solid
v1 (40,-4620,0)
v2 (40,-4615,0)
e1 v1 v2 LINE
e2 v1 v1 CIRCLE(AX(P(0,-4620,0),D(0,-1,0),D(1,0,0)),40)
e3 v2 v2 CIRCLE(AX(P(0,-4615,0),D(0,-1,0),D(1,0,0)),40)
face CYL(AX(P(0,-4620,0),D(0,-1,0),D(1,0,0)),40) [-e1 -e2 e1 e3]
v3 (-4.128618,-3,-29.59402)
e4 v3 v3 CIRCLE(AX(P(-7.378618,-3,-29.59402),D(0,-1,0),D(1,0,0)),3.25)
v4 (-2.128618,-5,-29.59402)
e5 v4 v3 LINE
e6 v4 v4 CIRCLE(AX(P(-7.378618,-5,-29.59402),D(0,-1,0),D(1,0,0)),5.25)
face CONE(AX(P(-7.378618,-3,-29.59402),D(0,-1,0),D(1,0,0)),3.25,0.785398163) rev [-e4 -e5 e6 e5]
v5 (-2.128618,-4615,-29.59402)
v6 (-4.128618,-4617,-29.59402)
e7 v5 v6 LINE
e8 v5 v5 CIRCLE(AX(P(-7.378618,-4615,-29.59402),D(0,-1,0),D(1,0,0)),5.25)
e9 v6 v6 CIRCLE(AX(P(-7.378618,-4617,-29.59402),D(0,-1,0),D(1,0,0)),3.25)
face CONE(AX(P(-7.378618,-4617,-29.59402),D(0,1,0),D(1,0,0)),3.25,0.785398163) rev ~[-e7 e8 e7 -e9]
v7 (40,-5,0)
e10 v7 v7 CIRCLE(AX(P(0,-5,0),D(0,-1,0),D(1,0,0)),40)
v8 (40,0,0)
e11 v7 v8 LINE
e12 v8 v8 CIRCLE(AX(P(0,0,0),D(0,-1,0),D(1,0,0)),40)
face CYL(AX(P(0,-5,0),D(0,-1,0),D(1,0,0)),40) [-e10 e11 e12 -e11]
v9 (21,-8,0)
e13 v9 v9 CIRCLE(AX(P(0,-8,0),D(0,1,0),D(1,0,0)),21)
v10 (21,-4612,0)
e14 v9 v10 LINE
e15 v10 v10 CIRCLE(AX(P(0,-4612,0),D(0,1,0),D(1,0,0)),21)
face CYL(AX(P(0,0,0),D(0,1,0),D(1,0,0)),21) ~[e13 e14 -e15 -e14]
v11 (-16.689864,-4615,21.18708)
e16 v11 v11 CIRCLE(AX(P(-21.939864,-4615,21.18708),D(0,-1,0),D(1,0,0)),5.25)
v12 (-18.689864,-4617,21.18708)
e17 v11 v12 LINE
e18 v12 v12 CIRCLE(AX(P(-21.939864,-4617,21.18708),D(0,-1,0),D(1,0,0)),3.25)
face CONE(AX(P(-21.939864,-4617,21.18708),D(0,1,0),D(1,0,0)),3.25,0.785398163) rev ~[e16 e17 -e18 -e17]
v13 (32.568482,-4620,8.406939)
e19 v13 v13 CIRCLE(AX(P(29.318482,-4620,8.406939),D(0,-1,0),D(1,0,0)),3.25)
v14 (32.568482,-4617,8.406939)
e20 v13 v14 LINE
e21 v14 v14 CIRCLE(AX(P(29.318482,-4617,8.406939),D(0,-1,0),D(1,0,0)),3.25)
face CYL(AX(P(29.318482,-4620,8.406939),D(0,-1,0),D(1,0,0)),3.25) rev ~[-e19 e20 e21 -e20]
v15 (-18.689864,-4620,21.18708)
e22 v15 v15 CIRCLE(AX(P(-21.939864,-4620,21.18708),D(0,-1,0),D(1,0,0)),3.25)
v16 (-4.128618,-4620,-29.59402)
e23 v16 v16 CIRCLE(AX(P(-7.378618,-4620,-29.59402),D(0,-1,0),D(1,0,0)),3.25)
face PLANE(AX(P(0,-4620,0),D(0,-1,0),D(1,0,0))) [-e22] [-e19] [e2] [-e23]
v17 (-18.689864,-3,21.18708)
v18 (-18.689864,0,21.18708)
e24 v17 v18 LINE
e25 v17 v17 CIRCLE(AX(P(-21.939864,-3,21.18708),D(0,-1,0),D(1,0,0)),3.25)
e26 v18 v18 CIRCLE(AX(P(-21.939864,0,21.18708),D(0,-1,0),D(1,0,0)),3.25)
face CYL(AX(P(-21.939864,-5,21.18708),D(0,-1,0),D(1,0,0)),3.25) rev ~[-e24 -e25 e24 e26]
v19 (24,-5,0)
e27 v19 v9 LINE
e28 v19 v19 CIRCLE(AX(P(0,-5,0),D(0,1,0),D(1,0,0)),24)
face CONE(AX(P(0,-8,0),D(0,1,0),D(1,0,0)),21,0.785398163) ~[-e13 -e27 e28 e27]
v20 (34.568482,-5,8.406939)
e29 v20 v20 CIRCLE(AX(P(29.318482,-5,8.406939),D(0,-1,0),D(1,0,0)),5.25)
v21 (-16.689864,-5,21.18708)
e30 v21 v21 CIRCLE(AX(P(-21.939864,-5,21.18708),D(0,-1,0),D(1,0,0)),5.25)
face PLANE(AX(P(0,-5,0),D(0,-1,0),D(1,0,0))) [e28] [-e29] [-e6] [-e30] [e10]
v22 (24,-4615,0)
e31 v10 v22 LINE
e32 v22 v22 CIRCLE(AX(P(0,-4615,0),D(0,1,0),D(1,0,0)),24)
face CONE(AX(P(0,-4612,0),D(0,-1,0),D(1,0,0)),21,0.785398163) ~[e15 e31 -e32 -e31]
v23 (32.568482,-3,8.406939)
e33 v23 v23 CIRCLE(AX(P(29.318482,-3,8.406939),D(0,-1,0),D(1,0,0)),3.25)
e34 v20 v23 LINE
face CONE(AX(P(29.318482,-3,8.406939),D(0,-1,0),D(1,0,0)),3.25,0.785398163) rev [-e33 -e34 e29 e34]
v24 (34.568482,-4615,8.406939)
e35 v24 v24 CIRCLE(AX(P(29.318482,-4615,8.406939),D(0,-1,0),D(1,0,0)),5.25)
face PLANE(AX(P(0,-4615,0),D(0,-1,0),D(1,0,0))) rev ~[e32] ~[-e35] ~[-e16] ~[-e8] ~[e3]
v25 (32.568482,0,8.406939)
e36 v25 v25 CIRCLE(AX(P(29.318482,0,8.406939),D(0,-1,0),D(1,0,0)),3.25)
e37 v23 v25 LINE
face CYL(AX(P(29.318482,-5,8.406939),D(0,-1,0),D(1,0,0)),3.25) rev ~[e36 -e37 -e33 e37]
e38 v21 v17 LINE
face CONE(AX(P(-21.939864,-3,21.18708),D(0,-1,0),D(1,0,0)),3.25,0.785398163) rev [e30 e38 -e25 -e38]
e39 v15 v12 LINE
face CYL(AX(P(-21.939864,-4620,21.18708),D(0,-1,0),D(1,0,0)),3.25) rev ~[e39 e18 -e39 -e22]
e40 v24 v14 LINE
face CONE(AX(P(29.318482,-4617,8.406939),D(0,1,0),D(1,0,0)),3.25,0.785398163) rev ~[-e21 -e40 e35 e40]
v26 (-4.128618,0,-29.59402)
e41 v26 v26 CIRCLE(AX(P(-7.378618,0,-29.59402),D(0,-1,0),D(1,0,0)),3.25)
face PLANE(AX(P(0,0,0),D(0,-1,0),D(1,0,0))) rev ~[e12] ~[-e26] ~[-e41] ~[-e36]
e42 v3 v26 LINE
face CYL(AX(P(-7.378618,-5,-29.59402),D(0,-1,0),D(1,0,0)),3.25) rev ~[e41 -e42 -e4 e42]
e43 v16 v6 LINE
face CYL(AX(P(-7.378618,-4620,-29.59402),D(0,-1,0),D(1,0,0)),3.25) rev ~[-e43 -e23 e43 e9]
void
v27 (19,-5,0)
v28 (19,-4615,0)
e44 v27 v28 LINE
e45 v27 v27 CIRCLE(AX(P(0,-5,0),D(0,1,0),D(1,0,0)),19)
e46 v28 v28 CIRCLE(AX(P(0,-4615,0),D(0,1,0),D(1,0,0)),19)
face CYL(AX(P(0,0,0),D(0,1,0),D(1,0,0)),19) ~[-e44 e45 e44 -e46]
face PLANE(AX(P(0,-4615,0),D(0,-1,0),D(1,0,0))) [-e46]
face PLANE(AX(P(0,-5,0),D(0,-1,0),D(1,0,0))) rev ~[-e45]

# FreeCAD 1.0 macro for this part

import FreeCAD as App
import Part
import Sketcher


def edges_at(feature, points):
    """Names of the edges that pass closest to the given points."""
    edges = feature.Shape.Edges
    near = lambda p: min(range(len(edges)), key=lambda i: edges[i].distToShape(Part.Vertex(*p))[0])
    return sorted({f"Edge{near(p) + 1}" for p in points})

doc = App.newDocument("Part")
params = doc.addObject("Spreadsheet::Sheet", "Params")
for row, (alias, value) in enumerate([
    ("sketch1_diameter", "42 mm"),
    ("sketch1_diameter2", "38 mm"),
    ("pad1_length", "4620 mm"),
    ("sketch2_diameter", "80 mm"),
    ("sketch2_diameter2", "6.5 mm"),
    ("pad2_length", "5 mm"),
    ("sketch3_diameter", "80 mm"),
    ("sketch3_diameter2", "6.5 mm"),
    ("pad3_length", "5 mm"),
    ("chamfer_size", "2 mm"),
    ("chamfer2_size", "3 mm"),
], start=1):
    params.set(f"A{row}", alias)
    params.set(f"B{row}", "=" + value)
    params.setAlias(f"B{row}", alias)

body = doc.addObject("PartDesign::Body", "Body")

sketch1 = doc.addObject("Sketcher::SketchObject", "Sketch")
body.addObject(sketch1)
sketch1.AttachmentSupport = (doc.XZ_Plane, [""])
sketch1.MapMode = "FlatFace"
sketch1.addGeometry(Part.Circle(App.Vector(0, 0, 0), App.Vector(0, 0, 1), 21), False)
sketch1.addGeometry(Part.Circle(App.Vector(0, 0, 0), App.Vector(0, 0, 1), 19), False)
sketch1.addConstraint(Sketcher.Constraint("Coincident", 0, 3, -1, 1))
sketch1.addConstraint(Sketcher.Constraint("Coincident", 1, 3, -1, 1))
sketch1.addConstraint(Sketcher.Constraint("Diameter", 0, 42.0))
sketch1.addConstraint(Sketcher.Constraint("Diameter", 1, 38.0))
sketch1.setExpression("Constraints[2]", "Params.sketch1_diameter")
sketch1.setExpression("Constraints[3]", "Params.sketch1_diameter2")
pad1 = doc.addObject("PartDesign::Pad", "Pad")
body.addObject(pad1)
pad1.Profile = sketch1
pad1.setExpression("Length", "Params.pad1_length")

sketch2 = doc.addObject("Sketcher::SketchObject", "Sketch001")
body.addObject(sketch2)
sketch2.AttachmentSupport = (doc.XZ_Plane, [""])
sketch2.MapMode = "FlatFace"
sketch2.AttachmentOffset = App.Placement(App.Vector(0, 0, 4620), App.Rotation())
sketch2.addGeometry(Part.Circle(App.Vector(0, 0, 0), App.Vector(0, 0, 1), 40), False)
sketch2.addGeometry(Part.Circle(App.Vector(-7.4, -29.6, 0), App.Vector(0, 0, 1), 3.2), False)
sketch2.addGeometry(Part.Circle(App.Vector(-21.9, 21.2, 0), App.Vector(0, 0, 1), 3.2), False)
sketch2.addGeometry(Part.Circle(App.Vector(29.3, 8.4, 0), App.Vector(0, 0, 1), 3.2), False)
sketch2.addConstraint(Sketcher.Constraint("Coincident", 0, 3, -1, 1))
sketch2.addConstraint(Sketcher.Constraint("Equal", 1, 2))
sketch2.addConstraint(Sketcher.Constraint("Equal", 2, 3))
sketch2.addConstraint(Sketcher.Constraint("Diameter", 0, 80.0))
sketch2.addConstraint(Sketcher.Constraint("Diameter", 1, 6.5))
sketch2.addConstraint(Sketcher.Constraint("DistanceY", 1, 3, 2, 3, 50.7811))
sketch2.addConstraint(Sketcher.Constraint("DistanceX", 1, 3, 3, 3, 36.6971))
sketch2.addConstraint(Sketcher.Constraint("DistanceY", 1, 3, -1, 1, 29.59402))
sketch2.addConstraint(Sketcher.Constraint("DistanceX", -1, 1, 3, 3, 29.318482))
sketch2.addConstraint(Sketcher.Constraint("DistanceY", -1, 1, 3, 3, 8.406939))
sketch2.addConstraint(Sketcher.Constraint("DistanceX", 2, 3, -1, 1, 21.939864))
sketch2.setExpression("Constraints[3]", "Params.sketch2_diameter")
sketch2.setExpression("Constraints[4]", "Params.sketch2_diameter2")
pad2 = doc.addObject("PartDesign::Pad", "Pad001")
body.addObject(pad2)
pad2.Profile = sketch2
pad2.setExpression("Length", "Params.pad2_length")
pad2.Reversed = True

sketch3 = doc.addObject("Sketcher::SketchObject", "Sketch002")
body.addObject(sketch3)
sketch3.AttachmentSupport = (doc.XZ_Plane, [""])
sketch3.MapMode = "FlatFace"
sketch3.AttachmentOffset = App.Placement(App.Vector(0, 0, 5), App.Rotation())
sketch3.addGeometry(Part.Circle(App.Vector(0, 0, 0), App.Vector(0, 0, 1), 40), False)
sketch3.addGeometry(Part.Circle(App.Vector(-7.4, -29.6, 0), App.Vector(0, 0, 1), 3.2), False)
sketch3.addGeometry(Part.Circle(App.Vector(-21.9, 21.2, 0), App.Vector(0, 0, 1), 3.2), False)
sketch3.addGeometry(Part.Circle(App.Vector(29.3, 8.4, 0), App.Vector(0, 0, 1), 3.2), False)
sketch3.addConstraint(Sketcher.Constraint("Coincident", 0, 3, -1, 1))
sketch3.addConstraint(Sketcher.Constraint("Equal", 1, 2))
sketch3.addConstraint(Sketcher.Constraint("Equal", 2, 3))
sketch3.addConstraint(Sketcher.Constraint("Diameter", 0, 80.0))
sketch3.addConstraint(Sketcher.Constraint("Diameter", 1, 6.5))
sketch3.addConstraint(Sketcher.Constraint("DistanceY", 1, 3, 2, 3, 50.7811))
sketch3.addConstraint(Sketcher.Constraint("DistanceX", 1, 3, 3, 3, 36.6971))
sketch3.addConstraint(Sketcher.Constraint("DistanceY", 1, 3, -1, 1, 29.59402))
sketch3.addConstraint(Sketcher.Constraint("DistanceX", -1, 1, 3, 3, 29.318482))
sketch3.addConstraint(Sketcher.Constraint("DistanceY", -1, 1, 3, 3, 8.406939))
sketch3.addConstraint(Sketcher.Constraint("DistanceX", 2, 3, -1, 1, 21.939864))
sketch3.setExpression("Constraints[3]", "Params.sketch3_diameter")
sketch3.setExpression("Constraints[4]", "Params.sketch3_diameter2")
pad3 = doc.addObject("PartDesign::Pad", "Pad002")
body.addObject(pad3)
pad3.Profile = sketch3
pad3.setExpression("Length", "Params.pad3_length")
pad3.Reversed = True
doc.recompute()

chamfer = doc.addObject("PartDesign::Chamfer", "Chamfer")
body.addObject(chamfer)
chamfer.Base = (pad3, edges_at(pad3, [
    (26.068, -4615, 8.407),
    (-25.19, -4615, 21.187),
    (-10.629, -4615, -29.594),
    (-10.629, -5, -29.594),
    (26.068, -5, 8.407),
    (-25.19, -5, 21.187),
]))
chamfer.setExpression("Size", "Params.chamfer_size")
doc.recompute()

chamfer2 = doc.addObject("PartDesign::Chamfer", "Chamfer001")
body.addObject(chamfer2)
chamfer2.Base = (chamfer, edges_at(chamfer, [(-21, -5, 0), (-21, -4615, 0)]))
chamfer2.setExpression("Size", "Params.chamfer2_size")

doc.recompute()
